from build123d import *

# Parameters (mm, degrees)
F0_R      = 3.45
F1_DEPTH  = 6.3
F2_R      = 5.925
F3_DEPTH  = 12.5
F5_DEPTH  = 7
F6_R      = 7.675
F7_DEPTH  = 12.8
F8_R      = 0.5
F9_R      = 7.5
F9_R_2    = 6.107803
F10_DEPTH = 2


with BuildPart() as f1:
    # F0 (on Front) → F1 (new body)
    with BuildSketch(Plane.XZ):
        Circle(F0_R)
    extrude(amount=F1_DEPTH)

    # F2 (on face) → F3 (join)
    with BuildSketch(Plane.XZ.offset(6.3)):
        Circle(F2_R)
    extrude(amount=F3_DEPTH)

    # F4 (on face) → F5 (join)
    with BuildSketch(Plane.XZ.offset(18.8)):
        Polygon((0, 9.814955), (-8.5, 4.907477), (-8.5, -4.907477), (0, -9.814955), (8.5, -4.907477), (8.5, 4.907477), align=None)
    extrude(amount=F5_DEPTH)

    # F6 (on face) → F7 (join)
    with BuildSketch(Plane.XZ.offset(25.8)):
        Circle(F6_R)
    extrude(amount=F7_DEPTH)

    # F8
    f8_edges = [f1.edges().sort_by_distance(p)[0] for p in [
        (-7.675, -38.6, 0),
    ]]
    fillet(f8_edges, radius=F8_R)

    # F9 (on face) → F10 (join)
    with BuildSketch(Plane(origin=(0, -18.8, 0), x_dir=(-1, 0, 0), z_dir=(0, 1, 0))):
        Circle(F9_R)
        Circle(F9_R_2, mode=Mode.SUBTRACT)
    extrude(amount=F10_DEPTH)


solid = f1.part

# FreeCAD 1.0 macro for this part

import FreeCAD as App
import Part
import Sketcher
Q = App.Units.Quantity


def edges_at(feature, points):
    """Names of the edges that pass closest to the given points."""
    edges = feature.Shape.Edges
    near = lambda p: min(range(len(edges)), key=lambda i: edges[i].distToShape(Part.Vertex(*p))[0])
    return sorted({f"Edge{near(p) + 1}" for p in points})

doc = App.newDocument("Part")
body = doc.addObject("PartDesign::Body", "Body")

# Sketch on XZ plane
sketch1 = body.newObject("Sketcher::SketchObject", "Sketch")
sketch1.AttachmentSupport = (doc.getObject("XZ_Plane"), [""])
sketch1.MapMode = "FlatFace"
sketch1.addGeometry(Part.Circle(App.Vector(0, 0, 0), App.Vector(0, 0, 1), 3.5), False)
sketch1.addConstraint(Sketcher.Constraint("Coincident", 0, 3, -1, 1))
sketch1.addConstraint(Sketcher.Constraint("Diameter", 0, Q("6.9 mm")))
pad1 = body.newObject("PartDesign::Pad", "Pad")
pad1.Profile = sketch1
pad1.Length = 6.3

# Sketch on XZ plane
sketch2 = body.newObject("Sketcher::SketchObject", "Sketch001")
sketch2.AttachmentSupport = (doc.getObject("XZ_Plane"), [""])
sketch2.MapMode = "FlatFace"
sketch2.AttachmentOffset = App.Placement(App.Vector(0, 0, 6.3), App.Rotation())
sketch2.addGeometry(Part.Circle(App.Vector(0, 0, 0), App.Vector(0, 0, 1), 6), False)
sketch2.addConstraint(Sketcher.Constraint("Coincident", 0, 3, -1, 1))
sketch2.addConstraint(Sketcher.Constraint("Diameter", 0, Q("11.85 mm")))
pad2 = body.newObject("PartDesign::Pad", "Pad001")
pad2.Profile = sketch2
pad2.Length = 12.5

# Sketch on XZ plane
sketch3 = body.newObject("Sketcher::SketchObject", "Sketch002")
sketch3.AttachmentSupport = (doc.getObject("XZ_Plane"), [""])
sketch3.MapMode = "FlatFace"
sketch3.AttachmentOffset = App.Placement(App.Vector(0, 0, 18.8), App.Rotation())
sketch3.addGeometry(Part.LineSegment(App.Vector(0, 10, 0), App.Vector(-8, 5, 0)), False)
sketch3.addGeometry(Part.LineSegment(App.Vector(-8, 5, 0), App.Vector(-8, -5, 0)), False)
sketch3.addGeometry(Part.LineSegment(App.Vector(-8, -5, 0), App.Vector(0, -10, 0)), False)
sketch3.addGeometry(Part.LineSegment(App.Vector(0, -10, 0), App.Vector(8, -5, 0)), False)
sketch3.addGeometry(Part.LineSegment(App.Vector(8, -5, 0), App.Vector(8, 5, 0)), False)
sketch3.addGeometry(Part.LineSegment(App.Vector(8, 5, 0), App.Vector(0, 10, 0)), False)
sketch3.addConstraint(Sketcher.Constraint("Coincident", 0, 2, 1, 1))
sketch3.addConstraint(Sketcher.Constraint("Coincident", 1, 2, 2, 1))
sketch3.addConstraint(Sketcher.Constraint("Coincident", 2, 2, 3, 1))
sketch3.addConstraint(Sketcher.Constraint("Coincident", 3, 2, 4, 1))
sketch3.addConstraint(Sketcher.Constraint("Coincident", 4, 2, 5, 1))
sketch3.addConstraint(Sketcher.Constraint("Coincident", 5, 2, 0, 1))
sketch3.addConstraint(Sketcher.Constraint("Vertical", 1))
sketch3.addConstraint(Sketcher.Constraint("Vertical", 4))
sketch3.addConstraint(Sketcher.Constraint("Symmetric", 0, 2, 3, 2, -1, 1))
sketch3.addConstraint(Sketcher.Constraint("Symmetric", 2, 2, 5, 2, -1, 1))
sketch3.addConstraint(Sketcher.Constraint("PointOnObject", 2, 2, -2))
sketch3.addConstraint(Sketcher.Constraint("Parallel", 2, 5))
sketch3.addConstraint(Sketcher.Constraint("Horizontal", 1, 2, 3, 2))
sketch3.addConstraint(Sketcher.Constraint("Angle", 0, Q("-149.999996 deg")))
sketch3.addConstraint(Sketcher.Constraint("DistanceX", 1, 2, 3, 2, Q("17 mm")))
sketch3.addConstraint(Sketcher.Constraint("DistanceY", 1, 2, 1, 1, Q("9.814954 mm")))
pad3 = body.newObject("PartDesign::Pad", "Pad002")
pad3.Profile = sketch3
pad3.Length = 7

# Sketch on XZ plane
sketch4 = body.newObject("Sketcher::SketchObject", "Sketch003")
sketch4.AttachmentSupport = (doc.getObject("XZ_Plane"), [""])
sketch4.MapMode = "FlatFace"
sketch4.AttachmentOffset = App.Placement(App.Vector(0, 0, 25.8), App.Rotation())
sketch4.addGeometry(Part.Circle(App.Vector(0, 0, 0), App.Vector(0, 0, 1), 8), False)
sketch4.addConstraint(Sketcher.Constraint("Coincident", 0, 3, -1, 1))
sketch4.addConstraint(Sketcher.Constraint("Diameter", 0, Q("15.35 mm")))
pad4 = body.newObject("PartDesign::Pad", "Pad003")
pad4.Profile = sketch4
pad4.Length = 12.8
doc.recompute()

fillet = body.newObject("PartDesign::Fillet", "Fillet")
fillet.Base = (pad4, edges_at(pad4, [(-7.675, -38.6, 0)]))
fillet.Radius = 0.5

# Sketch on XZ plane
sketch5 = body.newObject("Sketcher::SketchObject", "Sketch004")
sketch5.AttachmentSupport = (doc.getObject("XZ_Plane"), [""])
sketch5.MapMode = "FlatFace"
sketch5.AttachmentOffset = App.Placement(App.Vector(0, 0, 18.8), App.Rotation())
sketch5.addGeometry(Part.Circle(App.Vector(0, 0, 0), App.Vector(0, 0, 1), 8), False)
sketch5.addGeometry(Part.Circle(App.Vector(0, 0, 0), App.Vector(0, 0, 1), 6), False)
sketch5.addConstraint(Sketcher.Constraint("Coincident", 0, 3, -1, 1))
sketch5.addConstraint(Sketcher.Constraint("Coincident", 1, 3, -1, 1))
sketch5.addConstraint(Sketcher.Constraint("Diameter", 0, Q("15 mm")))
sketch5.addConstraint(Sketcher.Constraint("Diameter", 1, Q("12.215606 mm")))
pad5 = body.newObject("PartDesign::Pad", "Pad004")
pad5.Profile = sketch5
pad5.Length = 2
pad5.Reversed = True

doc.recompute()
